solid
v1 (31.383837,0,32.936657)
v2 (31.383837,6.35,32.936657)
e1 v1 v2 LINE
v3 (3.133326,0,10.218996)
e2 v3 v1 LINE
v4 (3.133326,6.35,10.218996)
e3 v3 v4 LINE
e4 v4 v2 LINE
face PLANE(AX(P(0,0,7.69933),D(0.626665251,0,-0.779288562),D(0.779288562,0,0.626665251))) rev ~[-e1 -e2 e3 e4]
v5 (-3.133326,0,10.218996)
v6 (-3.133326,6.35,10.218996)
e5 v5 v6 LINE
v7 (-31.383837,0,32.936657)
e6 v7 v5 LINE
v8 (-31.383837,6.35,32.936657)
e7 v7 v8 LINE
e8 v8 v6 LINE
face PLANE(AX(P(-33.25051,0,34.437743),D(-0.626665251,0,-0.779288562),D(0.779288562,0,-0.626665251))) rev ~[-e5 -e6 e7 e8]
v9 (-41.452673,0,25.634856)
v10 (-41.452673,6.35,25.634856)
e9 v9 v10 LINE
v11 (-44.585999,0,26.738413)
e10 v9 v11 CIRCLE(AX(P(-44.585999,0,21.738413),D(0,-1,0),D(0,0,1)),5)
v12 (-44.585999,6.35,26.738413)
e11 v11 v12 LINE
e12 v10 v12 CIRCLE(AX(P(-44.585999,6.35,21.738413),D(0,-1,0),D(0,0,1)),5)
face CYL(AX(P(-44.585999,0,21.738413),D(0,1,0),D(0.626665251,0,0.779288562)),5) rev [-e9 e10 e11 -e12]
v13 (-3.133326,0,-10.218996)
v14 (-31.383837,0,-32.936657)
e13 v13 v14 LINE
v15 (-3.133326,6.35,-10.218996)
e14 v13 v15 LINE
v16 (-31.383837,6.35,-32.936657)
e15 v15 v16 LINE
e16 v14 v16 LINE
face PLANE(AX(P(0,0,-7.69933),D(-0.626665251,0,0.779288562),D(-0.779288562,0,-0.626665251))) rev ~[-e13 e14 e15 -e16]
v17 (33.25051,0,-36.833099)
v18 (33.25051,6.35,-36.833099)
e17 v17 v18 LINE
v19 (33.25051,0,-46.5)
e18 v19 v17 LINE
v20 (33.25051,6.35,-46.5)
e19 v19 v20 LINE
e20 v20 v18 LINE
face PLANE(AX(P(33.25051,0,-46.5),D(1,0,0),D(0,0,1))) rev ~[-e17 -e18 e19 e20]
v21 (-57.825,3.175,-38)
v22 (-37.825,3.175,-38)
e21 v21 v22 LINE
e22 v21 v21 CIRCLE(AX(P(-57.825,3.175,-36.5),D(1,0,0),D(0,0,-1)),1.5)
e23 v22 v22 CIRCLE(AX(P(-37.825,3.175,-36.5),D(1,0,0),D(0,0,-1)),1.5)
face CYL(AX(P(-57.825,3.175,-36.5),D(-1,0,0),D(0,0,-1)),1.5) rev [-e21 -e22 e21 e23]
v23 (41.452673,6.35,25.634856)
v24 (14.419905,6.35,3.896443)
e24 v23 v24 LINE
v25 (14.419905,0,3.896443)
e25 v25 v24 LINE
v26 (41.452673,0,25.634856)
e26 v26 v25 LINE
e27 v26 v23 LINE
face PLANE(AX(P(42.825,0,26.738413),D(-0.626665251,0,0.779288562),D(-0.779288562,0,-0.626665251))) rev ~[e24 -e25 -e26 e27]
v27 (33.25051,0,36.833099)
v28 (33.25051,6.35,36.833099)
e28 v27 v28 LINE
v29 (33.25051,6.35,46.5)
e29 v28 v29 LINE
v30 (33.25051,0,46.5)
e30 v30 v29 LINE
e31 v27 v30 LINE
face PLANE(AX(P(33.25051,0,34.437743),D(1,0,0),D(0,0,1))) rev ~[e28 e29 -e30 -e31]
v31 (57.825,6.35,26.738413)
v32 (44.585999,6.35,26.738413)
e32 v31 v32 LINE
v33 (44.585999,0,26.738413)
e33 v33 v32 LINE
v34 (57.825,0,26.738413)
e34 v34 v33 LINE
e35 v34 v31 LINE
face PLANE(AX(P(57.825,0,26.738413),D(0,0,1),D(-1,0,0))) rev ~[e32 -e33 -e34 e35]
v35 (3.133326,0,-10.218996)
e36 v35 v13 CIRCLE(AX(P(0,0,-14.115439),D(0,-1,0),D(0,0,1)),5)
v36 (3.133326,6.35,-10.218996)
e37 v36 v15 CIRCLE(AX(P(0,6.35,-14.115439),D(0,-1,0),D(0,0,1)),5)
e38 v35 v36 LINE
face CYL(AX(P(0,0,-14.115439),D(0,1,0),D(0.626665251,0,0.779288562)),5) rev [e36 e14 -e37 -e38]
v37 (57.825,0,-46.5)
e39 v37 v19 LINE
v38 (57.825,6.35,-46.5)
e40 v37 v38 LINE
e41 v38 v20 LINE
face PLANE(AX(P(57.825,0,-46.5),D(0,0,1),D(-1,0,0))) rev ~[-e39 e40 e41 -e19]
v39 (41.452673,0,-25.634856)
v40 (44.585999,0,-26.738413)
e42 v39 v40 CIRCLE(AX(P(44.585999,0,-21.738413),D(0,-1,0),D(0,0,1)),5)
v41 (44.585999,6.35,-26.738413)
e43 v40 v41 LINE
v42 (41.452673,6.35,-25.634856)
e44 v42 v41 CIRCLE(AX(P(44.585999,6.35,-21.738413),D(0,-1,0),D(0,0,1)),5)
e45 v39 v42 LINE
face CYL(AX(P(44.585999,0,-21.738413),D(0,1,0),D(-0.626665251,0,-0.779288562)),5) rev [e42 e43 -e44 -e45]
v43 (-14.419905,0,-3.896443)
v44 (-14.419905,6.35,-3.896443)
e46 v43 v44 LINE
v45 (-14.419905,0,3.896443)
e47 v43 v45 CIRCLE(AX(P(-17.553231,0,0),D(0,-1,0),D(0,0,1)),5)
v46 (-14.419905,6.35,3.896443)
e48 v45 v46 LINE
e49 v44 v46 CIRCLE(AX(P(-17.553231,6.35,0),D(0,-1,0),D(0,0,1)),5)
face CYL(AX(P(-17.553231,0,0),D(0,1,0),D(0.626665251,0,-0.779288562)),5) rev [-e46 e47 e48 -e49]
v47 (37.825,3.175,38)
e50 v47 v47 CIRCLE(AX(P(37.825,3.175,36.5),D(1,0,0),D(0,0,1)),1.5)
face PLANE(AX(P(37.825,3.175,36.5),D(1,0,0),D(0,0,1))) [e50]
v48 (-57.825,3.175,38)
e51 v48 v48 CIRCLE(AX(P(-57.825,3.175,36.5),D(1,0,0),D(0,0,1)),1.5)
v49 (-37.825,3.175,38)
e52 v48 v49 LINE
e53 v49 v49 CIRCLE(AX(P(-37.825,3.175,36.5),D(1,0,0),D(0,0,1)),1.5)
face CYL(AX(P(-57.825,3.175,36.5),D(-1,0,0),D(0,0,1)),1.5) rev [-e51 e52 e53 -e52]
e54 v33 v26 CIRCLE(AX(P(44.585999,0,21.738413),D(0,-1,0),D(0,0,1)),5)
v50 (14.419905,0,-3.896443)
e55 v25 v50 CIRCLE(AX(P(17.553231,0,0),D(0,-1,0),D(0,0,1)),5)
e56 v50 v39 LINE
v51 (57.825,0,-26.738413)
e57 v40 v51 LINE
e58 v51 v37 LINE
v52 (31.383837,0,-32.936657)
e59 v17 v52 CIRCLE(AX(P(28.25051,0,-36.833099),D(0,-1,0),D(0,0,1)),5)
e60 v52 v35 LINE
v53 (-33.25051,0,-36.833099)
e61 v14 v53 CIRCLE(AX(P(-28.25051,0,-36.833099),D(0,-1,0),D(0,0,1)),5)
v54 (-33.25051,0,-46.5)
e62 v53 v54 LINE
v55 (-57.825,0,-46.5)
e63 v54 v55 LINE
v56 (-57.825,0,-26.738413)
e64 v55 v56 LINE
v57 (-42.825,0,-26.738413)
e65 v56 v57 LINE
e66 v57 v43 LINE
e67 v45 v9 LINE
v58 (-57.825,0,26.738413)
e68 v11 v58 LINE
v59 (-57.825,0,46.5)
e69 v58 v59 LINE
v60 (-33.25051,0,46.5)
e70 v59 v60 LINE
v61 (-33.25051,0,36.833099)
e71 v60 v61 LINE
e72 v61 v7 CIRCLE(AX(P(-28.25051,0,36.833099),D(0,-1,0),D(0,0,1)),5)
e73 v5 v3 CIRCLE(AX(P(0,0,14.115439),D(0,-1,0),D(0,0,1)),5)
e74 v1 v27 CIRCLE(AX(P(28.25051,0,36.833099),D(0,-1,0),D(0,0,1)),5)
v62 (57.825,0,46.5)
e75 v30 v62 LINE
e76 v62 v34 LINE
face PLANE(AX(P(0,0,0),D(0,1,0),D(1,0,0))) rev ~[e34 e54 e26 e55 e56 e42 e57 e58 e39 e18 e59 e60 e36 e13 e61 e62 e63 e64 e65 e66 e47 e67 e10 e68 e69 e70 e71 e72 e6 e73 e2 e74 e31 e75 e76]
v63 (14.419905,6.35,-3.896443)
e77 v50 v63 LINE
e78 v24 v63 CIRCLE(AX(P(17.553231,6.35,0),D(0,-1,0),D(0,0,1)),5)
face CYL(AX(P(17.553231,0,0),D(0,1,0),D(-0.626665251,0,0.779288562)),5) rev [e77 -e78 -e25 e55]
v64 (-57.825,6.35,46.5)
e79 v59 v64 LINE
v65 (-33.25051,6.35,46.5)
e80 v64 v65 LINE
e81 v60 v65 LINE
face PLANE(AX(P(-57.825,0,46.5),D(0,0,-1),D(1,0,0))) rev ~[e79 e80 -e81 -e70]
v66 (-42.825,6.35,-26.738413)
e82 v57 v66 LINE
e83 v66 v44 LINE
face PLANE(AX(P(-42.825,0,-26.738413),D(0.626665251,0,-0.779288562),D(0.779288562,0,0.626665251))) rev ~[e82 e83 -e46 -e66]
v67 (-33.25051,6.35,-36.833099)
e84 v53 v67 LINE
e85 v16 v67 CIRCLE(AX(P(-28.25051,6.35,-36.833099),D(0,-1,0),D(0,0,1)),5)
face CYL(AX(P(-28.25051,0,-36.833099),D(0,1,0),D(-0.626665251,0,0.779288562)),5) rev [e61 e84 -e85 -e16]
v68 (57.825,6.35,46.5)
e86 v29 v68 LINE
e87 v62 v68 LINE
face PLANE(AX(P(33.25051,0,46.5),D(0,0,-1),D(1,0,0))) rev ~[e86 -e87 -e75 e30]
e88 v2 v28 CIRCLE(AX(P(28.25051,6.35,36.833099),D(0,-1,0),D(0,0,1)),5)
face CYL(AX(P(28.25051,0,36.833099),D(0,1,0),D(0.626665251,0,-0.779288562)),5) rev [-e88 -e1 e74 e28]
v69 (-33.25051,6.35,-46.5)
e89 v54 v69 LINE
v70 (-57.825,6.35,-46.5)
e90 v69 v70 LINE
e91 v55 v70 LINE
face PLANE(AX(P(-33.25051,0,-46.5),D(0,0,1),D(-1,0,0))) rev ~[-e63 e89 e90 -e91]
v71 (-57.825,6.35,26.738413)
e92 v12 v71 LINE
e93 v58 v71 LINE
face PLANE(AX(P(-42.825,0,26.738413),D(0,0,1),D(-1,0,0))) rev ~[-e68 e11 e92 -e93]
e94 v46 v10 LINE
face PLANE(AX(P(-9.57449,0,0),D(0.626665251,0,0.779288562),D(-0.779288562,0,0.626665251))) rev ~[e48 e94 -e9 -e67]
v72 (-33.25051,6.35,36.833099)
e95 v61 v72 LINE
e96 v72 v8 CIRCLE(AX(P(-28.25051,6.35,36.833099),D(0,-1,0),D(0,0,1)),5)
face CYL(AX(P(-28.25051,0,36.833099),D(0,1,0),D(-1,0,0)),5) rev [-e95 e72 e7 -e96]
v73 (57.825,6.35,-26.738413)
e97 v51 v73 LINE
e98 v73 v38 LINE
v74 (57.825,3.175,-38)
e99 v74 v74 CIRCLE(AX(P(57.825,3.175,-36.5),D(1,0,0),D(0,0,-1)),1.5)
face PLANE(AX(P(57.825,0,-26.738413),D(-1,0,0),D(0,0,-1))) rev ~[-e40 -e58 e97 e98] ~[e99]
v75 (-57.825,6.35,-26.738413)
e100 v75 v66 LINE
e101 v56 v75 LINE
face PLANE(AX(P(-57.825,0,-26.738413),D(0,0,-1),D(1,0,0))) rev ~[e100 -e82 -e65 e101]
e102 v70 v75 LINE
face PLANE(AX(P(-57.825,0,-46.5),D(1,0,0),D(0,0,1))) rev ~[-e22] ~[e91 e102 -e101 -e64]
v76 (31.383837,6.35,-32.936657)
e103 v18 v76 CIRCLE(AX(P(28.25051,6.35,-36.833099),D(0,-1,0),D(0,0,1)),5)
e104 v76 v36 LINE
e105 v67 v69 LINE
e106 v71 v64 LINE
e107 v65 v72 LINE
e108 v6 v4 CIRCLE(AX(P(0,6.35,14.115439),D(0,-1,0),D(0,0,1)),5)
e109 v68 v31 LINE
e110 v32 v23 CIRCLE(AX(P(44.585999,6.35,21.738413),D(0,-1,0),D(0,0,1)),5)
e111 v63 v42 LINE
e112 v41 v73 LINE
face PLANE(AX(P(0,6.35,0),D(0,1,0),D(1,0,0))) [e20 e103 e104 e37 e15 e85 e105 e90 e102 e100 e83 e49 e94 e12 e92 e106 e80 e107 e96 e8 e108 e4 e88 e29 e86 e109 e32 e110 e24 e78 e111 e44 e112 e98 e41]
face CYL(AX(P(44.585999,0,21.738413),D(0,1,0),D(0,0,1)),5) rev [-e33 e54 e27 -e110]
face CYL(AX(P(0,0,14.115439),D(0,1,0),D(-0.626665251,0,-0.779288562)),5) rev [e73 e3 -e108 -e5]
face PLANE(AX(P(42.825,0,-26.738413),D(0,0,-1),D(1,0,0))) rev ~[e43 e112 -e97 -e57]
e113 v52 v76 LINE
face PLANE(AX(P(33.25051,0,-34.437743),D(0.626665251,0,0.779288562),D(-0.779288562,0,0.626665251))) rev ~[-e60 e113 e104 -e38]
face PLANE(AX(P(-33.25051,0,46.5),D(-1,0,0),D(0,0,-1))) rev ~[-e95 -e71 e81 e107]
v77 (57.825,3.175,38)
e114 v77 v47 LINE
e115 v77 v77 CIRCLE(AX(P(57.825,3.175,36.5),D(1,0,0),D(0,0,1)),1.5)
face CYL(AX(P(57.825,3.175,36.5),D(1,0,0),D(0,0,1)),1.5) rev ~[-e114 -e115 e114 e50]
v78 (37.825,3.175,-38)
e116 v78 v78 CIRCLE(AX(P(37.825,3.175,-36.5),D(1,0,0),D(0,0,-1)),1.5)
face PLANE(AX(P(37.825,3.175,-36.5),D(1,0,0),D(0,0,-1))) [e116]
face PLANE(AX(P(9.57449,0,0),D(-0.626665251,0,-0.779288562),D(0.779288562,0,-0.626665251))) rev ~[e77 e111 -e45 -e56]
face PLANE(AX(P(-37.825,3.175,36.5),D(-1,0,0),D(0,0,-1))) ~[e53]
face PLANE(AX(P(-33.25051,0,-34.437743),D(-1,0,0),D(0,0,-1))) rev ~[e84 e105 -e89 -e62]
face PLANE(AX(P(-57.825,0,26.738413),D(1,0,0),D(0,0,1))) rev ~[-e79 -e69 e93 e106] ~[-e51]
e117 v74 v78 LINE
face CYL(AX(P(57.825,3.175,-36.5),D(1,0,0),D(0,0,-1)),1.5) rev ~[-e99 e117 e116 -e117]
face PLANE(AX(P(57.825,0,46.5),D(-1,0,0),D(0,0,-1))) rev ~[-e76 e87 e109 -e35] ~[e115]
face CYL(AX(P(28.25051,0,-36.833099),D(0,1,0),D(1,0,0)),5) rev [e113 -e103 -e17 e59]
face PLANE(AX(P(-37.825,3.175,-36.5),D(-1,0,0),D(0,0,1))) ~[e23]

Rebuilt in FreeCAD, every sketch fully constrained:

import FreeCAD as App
import Part
import Sketcher

V = App.Vector
Q = App.Units.Quantity


def edges_at(feature, points):
    """Names of the edges that pass closest to the given points."""
    edges = feature.Shape.Edges
    near = lambda p: min(range(len(edges)), key=lambda i: edges[i].distToShape(Part.Vertex(*p))[0])
    return sorted({f"Edge{near(p) + 1}" for p in points})


def add_polygon(sketch, points):
    """Adds a closed chain of lines whose ends are joined by coincident constraints."""
    first, n = sketch.GeometryCount, len(points)
    for a, b in zip(points, points[1:] + points[:1]):
        sketch.addGeometry(Part.LineSegment(App.Vector(*a, 0), App.Vector(*b, 0)), False)
    for i in range(n):
        sketch.addConstraint(Sketcher.Constraint("Coincident", first + i, 2, first + (i + 1) % n, 1))

doc = App.newDocument("Part")
body = doc.addObject("PartDesign::Body", "Body")

# Sketch on XZ plane
sketch1 = body.newObject("Sketcher::SketchObject", "Sketch")
sketch1.AttachmentSupport = (doc.getObject("XZ_Plane"), [""])
sketch1.MapMode = "FlatFace"
add_polygon(sketch1, [(-58, -27), (-43, -27), (-10, 0), (-43, 27), (-58, 27), (-58, 46), (-33, 46), (-33, 34), (0, 8), (33, 34), (33, 46), (58, 46), (58, 27), (43, 27), (10, 0), (43, -27), (58, -27), (58, -46), (33, -46), (33, -34), (0, -8), (-33, -34), (-33, -46), (-58, -46)])  # lines 0-23
sketch1.addConstraint(Sketcher.Constraint("Horizontal", 0))
sketch1.addConstraint(Sketcher.Constraint("Horizontal", 3))
sketch1.addConstraint(Sketcher.Constraint("Vertical", 4))
sketch1.addConstraint(Sketcher.Constraint("Horizontal", 5))
sketch1.addConstraint(Sketcher.Constraint("Vertical", 6))
sketch1.addConstraint(Sketcher.Constraint("Vertical", 9))
sketch1.addConstraint(Sketcher.Constraint("Horizontal", 10))
sketch1.addConstraint(Sketcher.Constraint("Vertical", 11))
sketch1.addConstraint(Sketcher.Constraint("Horizontal", 12))
sketch1.addConstraint(Sketcher.Constraint("Horizontal", 15))
sketch1.addConstraint(Sketcher.Constraint("Vertical", 16))
sketch1.addConstraint(Sketcher.Constraint("Horizontal", 17))
sketch1.addConstraint(Sketcher.Constraint("Vertical", 18))
sketch1.addConstraint(Sketcher.Constraint("Vertical", 21))
sketch1.addConstraint(Sketcher.Constraint("Horizontal", 22))
sketch1.addConstraint(Sketcher.Constraint("Vertical", 23))
sketch1.addConstraint(Sketcher.Constraint("Symmetric", 0, 2, 12, 2, -1, 1))
sketch1.addConstraint(Sketcher.Constraint("Symmetric", 1, 2, 13, 2, -1, 1))
sketch1.addConstraint(Sketcher.Constraint("Symmetric", 2, 2, 14, 2, -1, 1))
sketch1.addConstraint(Sketcher.Constraint("Symmetric", 4, 2, 16, 2, -1, 1))
sketch1.addConstraint(Sketcher.Constraint("Symmetric", 6, 2, 18, 2, -1, 1))
sketch1.addConstraint(Sketcher.Constraint("Symmetric", 7, 2, 19, 2, -1, 1))
sketch1.addConstraint(Sketcher.Constraint("Symmetric", 8, 2, 20, 2, -1, 1))
sketch1.addConstraint(Sketcher.Constraint("Symmetric", 10, 2, 22, 2, -1, 1))
sketch1.addConstraint(Sketcher.Constraint("Symmetric", 6, 2, 8, 2, -2))
sketch1.addConstraint(Sketcher.Constraint("Symmetric", 4, 2, 10, 2, -2))
sketch1.addConstraint(Sketcher.Constraint("Symmetric", 2, 2, 12, 2, -2))
sketch1.addConstraint(Sketcher.Constraint("PointOnObject", 1, 2, -1))
sketch1.addConstraint(Sketcher.Constraint("PointOnObject", 7, 2, -2))
sketch1.addConstraint(Sketcher.Constraint("Parallel", 2, 7))
sketch1.addConstraint(Sketcher.Constraint("Equal", 2, 7))
sketch1.addConstraint(Sketcher.Constraint("DistanceX", 0, 1, 0, 2, Q("15 mm")))
sketch1.addConstraint(Sketcher.Constraint("DistanceY", -1, 1, 4, 2, Q("46.5 mm")))
sketch1.addConstraint(Sketcher.Constraint("DistanceX", 0, 2, -1, 1, Q("42.825 mm")))
sketch1.addConstraint(Sketcher.Constraint("DistanceX", 5, 1, 5, 2, Q("24.57449 mm")))
sketch1.addConstraint(Sketcher.Constraint("DistanceY", 4, 1, 4, 2, Q("19.761587 mm")))
sketch1.addConstraint(Sketcher.Constraint("DistanceY", 6, 2, 6, 1, Q("12.062257 mm")))
pad1 = body.newObject("PartDesign::Pad", "Pad")
pad1.Profile = sketch1
pad1.Length = 6.35
pad1.Reversed = True
doc.recompute()

fillet = body.newObject("PartDesign::Fillet", "Fillet")
fillet.Base = (pad1, edges_at(pad1, [
    (-33.251, 3.175, -34.438),
    (0, 3.175, -7.699),
    (33.251, 3.175, -34.438),
    (42.825, 3.175, -26.738),
    (9.574, 3.175, 0),
    (42.825, 3.175, 26.738),
    (33.251, 3.175, 34.438),
    (0, 3.175, 7.699),
    (-33.251, 3.175, 34.438),
    (-42.825, 3.175, 26.738),
    (-9.574, 3.175, 0),
]))
fillet.Radius = 5

# Sketch on YZ plane
sketch2 = body.newObject("Sketcher::SketchObject", "Sketch001")
sketch2.AttachmentSupport = (doc.getObject("YZ_Plane"), [""])
sketch2.MapMode = "FlatFace"
sketch2.AttachmentOffset = App.Placement(V(0, 0, 57.825), App.Rotation())
sketch2.addGeometry(Part.Circle(V(3.2, -36.5, 0), V(0, 0, 1), 1.5), False)
sketch2.addGeometry(Part.Circle(V(3.2, 36.5, 0), V(0, 0, 1), 1.5), False)
sketch2.addConstraint(Sketcher.Constraint("Equal", 0, 1))
sketch2.addConstraint(Sketcher.Constraint("Symmetric", 0, 3, 1, 3, -1))
sketch2.addConstraint(Sketcher.Constraint("Diameter", 0, Q("3 mm")))
sketch2.addConstraint(Sketcher.Constraint("DistanceY", 0, 3, 1, 3, Q("73 mm")))
sketch2.addConstraint(Sketcher.Constraint("DistanceX", -1, 1, 0, 3, Q("3.175 mm")))
pocket1 = body.newObject("PartDesign::Pocket", "Pocket")
pocket1.Profile = sketch2
pocket1.Length = 20
doc.recompute()

mirrored = body.newObject("PartDesign::Mirrored", "Mirrored")
mirrored.Originals = [pocket1]
mirrored.MirrorPlane = (doc.getObject("YZ_Plane"), [""])
body.Tip = mirrored

doc.recompute()
